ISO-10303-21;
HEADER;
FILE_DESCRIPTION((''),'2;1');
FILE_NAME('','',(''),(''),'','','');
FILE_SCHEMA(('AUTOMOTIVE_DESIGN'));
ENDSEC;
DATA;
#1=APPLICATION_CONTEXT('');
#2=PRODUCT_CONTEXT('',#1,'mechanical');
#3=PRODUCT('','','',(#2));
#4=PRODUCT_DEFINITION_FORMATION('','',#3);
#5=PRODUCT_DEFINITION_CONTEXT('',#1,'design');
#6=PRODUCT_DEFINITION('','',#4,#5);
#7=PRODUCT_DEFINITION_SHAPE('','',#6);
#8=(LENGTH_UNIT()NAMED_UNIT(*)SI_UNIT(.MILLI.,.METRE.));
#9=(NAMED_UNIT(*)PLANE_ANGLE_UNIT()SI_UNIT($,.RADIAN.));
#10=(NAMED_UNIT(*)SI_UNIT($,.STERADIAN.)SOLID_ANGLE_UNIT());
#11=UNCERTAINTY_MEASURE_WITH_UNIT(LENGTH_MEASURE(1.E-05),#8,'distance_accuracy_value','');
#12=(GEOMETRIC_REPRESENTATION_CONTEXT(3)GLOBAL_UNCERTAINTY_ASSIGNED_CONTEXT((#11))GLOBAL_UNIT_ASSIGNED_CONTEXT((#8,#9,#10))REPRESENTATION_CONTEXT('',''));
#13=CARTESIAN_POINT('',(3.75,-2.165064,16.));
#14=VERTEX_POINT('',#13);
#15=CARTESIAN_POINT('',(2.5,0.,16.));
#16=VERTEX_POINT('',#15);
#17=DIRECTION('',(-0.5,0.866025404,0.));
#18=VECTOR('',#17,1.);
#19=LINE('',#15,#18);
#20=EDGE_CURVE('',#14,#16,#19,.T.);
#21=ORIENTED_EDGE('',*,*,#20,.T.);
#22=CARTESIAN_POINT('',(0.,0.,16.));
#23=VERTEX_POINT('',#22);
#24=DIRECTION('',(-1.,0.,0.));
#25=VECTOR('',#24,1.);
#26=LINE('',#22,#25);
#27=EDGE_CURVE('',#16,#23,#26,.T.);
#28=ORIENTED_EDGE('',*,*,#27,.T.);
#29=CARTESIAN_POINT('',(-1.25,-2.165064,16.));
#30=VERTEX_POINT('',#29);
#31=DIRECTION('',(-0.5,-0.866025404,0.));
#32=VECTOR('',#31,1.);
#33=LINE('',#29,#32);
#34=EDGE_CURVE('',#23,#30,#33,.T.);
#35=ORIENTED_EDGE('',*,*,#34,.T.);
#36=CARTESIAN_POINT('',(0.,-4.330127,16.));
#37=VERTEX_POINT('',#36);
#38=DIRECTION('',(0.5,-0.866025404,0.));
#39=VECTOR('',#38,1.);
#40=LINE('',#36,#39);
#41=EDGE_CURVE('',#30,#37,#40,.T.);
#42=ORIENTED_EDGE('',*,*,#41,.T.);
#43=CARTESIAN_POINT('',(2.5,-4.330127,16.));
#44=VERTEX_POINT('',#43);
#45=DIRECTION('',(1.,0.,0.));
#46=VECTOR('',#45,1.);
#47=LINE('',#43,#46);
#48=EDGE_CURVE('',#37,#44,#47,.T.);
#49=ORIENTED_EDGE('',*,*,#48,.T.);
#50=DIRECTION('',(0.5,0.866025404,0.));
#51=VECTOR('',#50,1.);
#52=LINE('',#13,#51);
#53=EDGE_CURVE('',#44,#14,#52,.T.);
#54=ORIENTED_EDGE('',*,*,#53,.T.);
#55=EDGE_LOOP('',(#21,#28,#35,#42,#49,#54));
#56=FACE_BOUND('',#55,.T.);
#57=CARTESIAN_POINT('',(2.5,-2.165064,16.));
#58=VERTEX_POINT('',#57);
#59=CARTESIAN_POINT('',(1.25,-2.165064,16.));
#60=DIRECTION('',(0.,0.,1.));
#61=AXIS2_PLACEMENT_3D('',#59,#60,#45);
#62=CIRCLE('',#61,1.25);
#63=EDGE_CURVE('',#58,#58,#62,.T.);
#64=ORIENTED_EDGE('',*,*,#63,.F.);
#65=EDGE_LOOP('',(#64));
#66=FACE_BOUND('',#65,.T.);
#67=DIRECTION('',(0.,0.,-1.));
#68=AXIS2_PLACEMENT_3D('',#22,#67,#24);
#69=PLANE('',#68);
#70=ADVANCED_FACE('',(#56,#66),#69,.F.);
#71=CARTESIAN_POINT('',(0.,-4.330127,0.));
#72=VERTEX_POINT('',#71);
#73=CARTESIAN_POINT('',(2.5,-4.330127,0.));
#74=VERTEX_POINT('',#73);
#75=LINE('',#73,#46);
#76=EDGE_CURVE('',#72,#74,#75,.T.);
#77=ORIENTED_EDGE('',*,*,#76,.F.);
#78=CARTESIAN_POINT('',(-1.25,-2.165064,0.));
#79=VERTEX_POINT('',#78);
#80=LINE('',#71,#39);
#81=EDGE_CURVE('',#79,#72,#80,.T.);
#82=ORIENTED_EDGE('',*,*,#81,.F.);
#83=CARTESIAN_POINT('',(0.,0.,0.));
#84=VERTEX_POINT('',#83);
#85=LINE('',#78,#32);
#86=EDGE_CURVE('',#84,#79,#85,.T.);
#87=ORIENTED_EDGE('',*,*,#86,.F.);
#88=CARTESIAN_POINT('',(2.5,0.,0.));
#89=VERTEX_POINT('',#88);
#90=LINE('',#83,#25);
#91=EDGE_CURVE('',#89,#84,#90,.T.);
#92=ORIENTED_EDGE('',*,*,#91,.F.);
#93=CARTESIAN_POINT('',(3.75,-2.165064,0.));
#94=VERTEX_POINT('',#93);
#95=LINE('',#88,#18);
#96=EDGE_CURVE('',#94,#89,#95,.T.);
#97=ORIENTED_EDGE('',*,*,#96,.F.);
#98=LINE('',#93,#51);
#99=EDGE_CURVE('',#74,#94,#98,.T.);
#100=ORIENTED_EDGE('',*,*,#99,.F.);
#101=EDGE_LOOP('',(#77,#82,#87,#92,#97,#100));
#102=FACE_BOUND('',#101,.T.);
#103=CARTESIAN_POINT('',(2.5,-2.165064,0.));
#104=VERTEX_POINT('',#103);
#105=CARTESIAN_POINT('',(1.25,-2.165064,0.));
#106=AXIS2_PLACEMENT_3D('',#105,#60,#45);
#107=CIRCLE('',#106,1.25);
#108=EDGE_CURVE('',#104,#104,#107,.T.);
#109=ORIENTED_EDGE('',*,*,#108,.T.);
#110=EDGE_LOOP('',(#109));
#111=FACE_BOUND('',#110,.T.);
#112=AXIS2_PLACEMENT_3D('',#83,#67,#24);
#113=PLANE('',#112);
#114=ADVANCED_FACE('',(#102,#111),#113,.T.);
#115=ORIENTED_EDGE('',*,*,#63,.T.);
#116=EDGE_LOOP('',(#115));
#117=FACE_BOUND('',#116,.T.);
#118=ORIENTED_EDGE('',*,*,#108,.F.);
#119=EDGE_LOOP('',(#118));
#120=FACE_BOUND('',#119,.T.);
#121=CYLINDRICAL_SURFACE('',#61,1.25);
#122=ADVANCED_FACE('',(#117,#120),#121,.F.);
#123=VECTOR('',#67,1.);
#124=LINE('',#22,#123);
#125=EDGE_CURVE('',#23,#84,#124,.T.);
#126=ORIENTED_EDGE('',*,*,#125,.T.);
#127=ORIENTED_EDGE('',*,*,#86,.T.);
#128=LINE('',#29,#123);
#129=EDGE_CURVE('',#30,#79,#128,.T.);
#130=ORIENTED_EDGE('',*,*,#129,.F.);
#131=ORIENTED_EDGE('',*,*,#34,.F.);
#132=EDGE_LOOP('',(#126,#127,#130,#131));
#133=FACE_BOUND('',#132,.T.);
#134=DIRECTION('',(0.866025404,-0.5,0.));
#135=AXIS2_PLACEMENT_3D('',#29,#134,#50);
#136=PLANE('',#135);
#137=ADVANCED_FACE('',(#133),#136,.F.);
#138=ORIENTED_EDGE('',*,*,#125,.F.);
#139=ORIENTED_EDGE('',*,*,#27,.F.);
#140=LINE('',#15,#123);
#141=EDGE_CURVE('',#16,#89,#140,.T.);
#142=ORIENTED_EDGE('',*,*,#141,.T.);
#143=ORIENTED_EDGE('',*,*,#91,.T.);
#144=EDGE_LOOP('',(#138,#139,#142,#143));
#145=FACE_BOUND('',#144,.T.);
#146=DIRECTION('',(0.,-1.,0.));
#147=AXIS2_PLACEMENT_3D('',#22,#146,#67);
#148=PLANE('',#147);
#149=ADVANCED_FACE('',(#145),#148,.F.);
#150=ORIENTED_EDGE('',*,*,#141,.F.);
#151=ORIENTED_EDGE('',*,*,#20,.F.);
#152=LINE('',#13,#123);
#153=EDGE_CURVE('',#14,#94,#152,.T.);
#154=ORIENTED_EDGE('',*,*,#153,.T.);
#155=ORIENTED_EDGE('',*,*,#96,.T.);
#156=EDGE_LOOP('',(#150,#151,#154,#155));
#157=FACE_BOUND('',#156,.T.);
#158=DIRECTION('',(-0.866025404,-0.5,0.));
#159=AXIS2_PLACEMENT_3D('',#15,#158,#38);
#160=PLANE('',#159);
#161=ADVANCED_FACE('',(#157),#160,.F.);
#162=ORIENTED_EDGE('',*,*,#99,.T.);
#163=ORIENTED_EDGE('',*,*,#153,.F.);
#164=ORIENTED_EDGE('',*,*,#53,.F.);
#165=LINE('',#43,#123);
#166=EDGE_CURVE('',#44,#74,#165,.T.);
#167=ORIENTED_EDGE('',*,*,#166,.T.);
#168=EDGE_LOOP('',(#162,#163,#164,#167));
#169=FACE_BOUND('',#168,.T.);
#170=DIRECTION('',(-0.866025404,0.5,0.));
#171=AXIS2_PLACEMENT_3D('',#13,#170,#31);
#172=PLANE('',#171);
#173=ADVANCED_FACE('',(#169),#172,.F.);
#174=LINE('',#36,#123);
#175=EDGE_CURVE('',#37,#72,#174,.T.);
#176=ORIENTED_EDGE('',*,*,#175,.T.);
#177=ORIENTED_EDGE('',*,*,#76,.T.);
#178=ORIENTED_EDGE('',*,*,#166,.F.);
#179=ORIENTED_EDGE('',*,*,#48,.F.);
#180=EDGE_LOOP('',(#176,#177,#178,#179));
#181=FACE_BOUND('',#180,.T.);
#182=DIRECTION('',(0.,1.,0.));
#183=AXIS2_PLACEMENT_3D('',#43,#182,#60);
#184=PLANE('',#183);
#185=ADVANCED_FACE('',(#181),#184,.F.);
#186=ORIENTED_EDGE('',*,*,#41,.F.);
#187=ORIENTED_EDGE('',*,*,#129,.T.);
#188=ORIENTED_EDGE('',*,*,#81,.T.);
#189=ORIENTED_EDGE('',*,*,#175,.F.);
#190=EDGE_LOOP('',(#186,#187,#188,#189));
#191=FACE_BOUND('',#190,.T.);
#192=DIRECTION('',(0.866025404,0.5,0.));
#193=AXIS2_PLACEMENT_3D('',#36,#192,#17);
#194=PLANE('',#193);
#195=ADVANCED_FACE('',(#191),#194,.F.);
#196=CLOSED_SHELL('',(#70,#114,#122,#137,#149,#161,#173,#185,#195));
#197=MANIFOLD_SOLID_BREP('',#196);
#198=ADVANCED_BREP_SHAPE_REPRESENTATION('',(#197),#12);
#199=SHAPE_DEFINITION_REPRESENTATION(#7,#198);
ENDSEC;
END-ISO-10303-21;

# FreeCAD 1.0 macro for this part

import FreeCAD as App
import Part
import Sketcher

V = App.Vector
Q = App.Units.Quantity


def add_polygon(sketch, points):
    """Adds a closed chain of lines whose ends are joined by coincident constraints."""
    first, n = sketch.GeometryCount, len(points)
    for a, b in zip(points, points[1:] + points[:1]):
        sketch.addGeometry(Part.LineSegment(App.Vector(*a, 0), App.Vector(*b, 0)), False)
    for i in range(n):
        sketch.addConstraint(Sketcher.Constraint("Coincident", first + i, 2, first + (i + 1) % n, 1))

doc = App.newDocument("Part")
body = doc.addObject("PartDesign::Body", "Body")

# Sketch on XY plane
sketch1 = doc.addObject("Sketcher::SketchObject", "Sketch")
body.addObject(sketch1)
sketch1.AttachmentSupport = (doc.XY_Plane, [""])
sketch1.MapMode = "FlatFace"
add_polygon(sketch1, [(2.5, 0), (0, 0), (-1.2, -2.2), (0, -4.3), (2.5, -4.3), (3.8, -2.2)])  # lines 0-5
sketch1.addConstraint([
    Sketcher.Constraint("Horizontal", 0),
    Sketcher.Constraint("Horizontal", 3),
    Sketcher.Constraint("Coincident", 0, 2, -1, 1),
    Sketcher.Constraint("PointOnObject", 2, 2, -2),
    Sketcher.Constraint("Parallel", 1, 4),
    Sketcher.Constraint("Parallel", 2, 5),
    Sketcher.Constraint("Horizontal", 1, 2, 4, 2),
    Sketcher.Constraint("Vertical", 3, 2, 5, 2),
    Sketcher.Constraint("Angle", 1, Q("-120 deg")),
    Sketcher.Constraint("DistanceX", 0, 2, 0, 1, 2.5),
    Sketcher.Constraint("DistanceX", 1, 2, 4, 2, 5.0),
])
pad1 = doc.addObject("PartDesign::Pad", "Pad")
body.addObject(pad1)
pad1.Profile = sketch1
pad1.Length = 16

# Sketch on XY plane
sketch2 = doc.addObject("Sketcher::SketchObject", "Sketch001")
body.addObject(sketch2)
sketch2.AttachmentSupport = (doc.XY_Plane, [""])
sketch2.MapMode = "FlatFace"
sketch2.AttachmentOffset = App.Placement(V(0, 0, 16), App.Rotation())
sketch2.addGeometry(Part.Circle(V(1.2, -2.2, 0), V(0, 0, 1), 1.2), False)
sketch2.addConstraint([
    Sketcher.Constraint("Diameter", 0, 2.5),
    Sketcher.Constraint("DistanceX", -1, 1, 0, 3, 1.25),
    Sketcher.Constraint("DistanceY", 0, 3, -1, 1, 2.165064),
])
doc.recompute()
hole = doc.addObject("PartDesign::Hole", "Hole")
body.addObject(hole)
hole.Profile = sketch2
hole.ThreadType = "None"
hole.Diameter = 2.5
hole.DepthType = "ThroughAll"

doc.recompute()
